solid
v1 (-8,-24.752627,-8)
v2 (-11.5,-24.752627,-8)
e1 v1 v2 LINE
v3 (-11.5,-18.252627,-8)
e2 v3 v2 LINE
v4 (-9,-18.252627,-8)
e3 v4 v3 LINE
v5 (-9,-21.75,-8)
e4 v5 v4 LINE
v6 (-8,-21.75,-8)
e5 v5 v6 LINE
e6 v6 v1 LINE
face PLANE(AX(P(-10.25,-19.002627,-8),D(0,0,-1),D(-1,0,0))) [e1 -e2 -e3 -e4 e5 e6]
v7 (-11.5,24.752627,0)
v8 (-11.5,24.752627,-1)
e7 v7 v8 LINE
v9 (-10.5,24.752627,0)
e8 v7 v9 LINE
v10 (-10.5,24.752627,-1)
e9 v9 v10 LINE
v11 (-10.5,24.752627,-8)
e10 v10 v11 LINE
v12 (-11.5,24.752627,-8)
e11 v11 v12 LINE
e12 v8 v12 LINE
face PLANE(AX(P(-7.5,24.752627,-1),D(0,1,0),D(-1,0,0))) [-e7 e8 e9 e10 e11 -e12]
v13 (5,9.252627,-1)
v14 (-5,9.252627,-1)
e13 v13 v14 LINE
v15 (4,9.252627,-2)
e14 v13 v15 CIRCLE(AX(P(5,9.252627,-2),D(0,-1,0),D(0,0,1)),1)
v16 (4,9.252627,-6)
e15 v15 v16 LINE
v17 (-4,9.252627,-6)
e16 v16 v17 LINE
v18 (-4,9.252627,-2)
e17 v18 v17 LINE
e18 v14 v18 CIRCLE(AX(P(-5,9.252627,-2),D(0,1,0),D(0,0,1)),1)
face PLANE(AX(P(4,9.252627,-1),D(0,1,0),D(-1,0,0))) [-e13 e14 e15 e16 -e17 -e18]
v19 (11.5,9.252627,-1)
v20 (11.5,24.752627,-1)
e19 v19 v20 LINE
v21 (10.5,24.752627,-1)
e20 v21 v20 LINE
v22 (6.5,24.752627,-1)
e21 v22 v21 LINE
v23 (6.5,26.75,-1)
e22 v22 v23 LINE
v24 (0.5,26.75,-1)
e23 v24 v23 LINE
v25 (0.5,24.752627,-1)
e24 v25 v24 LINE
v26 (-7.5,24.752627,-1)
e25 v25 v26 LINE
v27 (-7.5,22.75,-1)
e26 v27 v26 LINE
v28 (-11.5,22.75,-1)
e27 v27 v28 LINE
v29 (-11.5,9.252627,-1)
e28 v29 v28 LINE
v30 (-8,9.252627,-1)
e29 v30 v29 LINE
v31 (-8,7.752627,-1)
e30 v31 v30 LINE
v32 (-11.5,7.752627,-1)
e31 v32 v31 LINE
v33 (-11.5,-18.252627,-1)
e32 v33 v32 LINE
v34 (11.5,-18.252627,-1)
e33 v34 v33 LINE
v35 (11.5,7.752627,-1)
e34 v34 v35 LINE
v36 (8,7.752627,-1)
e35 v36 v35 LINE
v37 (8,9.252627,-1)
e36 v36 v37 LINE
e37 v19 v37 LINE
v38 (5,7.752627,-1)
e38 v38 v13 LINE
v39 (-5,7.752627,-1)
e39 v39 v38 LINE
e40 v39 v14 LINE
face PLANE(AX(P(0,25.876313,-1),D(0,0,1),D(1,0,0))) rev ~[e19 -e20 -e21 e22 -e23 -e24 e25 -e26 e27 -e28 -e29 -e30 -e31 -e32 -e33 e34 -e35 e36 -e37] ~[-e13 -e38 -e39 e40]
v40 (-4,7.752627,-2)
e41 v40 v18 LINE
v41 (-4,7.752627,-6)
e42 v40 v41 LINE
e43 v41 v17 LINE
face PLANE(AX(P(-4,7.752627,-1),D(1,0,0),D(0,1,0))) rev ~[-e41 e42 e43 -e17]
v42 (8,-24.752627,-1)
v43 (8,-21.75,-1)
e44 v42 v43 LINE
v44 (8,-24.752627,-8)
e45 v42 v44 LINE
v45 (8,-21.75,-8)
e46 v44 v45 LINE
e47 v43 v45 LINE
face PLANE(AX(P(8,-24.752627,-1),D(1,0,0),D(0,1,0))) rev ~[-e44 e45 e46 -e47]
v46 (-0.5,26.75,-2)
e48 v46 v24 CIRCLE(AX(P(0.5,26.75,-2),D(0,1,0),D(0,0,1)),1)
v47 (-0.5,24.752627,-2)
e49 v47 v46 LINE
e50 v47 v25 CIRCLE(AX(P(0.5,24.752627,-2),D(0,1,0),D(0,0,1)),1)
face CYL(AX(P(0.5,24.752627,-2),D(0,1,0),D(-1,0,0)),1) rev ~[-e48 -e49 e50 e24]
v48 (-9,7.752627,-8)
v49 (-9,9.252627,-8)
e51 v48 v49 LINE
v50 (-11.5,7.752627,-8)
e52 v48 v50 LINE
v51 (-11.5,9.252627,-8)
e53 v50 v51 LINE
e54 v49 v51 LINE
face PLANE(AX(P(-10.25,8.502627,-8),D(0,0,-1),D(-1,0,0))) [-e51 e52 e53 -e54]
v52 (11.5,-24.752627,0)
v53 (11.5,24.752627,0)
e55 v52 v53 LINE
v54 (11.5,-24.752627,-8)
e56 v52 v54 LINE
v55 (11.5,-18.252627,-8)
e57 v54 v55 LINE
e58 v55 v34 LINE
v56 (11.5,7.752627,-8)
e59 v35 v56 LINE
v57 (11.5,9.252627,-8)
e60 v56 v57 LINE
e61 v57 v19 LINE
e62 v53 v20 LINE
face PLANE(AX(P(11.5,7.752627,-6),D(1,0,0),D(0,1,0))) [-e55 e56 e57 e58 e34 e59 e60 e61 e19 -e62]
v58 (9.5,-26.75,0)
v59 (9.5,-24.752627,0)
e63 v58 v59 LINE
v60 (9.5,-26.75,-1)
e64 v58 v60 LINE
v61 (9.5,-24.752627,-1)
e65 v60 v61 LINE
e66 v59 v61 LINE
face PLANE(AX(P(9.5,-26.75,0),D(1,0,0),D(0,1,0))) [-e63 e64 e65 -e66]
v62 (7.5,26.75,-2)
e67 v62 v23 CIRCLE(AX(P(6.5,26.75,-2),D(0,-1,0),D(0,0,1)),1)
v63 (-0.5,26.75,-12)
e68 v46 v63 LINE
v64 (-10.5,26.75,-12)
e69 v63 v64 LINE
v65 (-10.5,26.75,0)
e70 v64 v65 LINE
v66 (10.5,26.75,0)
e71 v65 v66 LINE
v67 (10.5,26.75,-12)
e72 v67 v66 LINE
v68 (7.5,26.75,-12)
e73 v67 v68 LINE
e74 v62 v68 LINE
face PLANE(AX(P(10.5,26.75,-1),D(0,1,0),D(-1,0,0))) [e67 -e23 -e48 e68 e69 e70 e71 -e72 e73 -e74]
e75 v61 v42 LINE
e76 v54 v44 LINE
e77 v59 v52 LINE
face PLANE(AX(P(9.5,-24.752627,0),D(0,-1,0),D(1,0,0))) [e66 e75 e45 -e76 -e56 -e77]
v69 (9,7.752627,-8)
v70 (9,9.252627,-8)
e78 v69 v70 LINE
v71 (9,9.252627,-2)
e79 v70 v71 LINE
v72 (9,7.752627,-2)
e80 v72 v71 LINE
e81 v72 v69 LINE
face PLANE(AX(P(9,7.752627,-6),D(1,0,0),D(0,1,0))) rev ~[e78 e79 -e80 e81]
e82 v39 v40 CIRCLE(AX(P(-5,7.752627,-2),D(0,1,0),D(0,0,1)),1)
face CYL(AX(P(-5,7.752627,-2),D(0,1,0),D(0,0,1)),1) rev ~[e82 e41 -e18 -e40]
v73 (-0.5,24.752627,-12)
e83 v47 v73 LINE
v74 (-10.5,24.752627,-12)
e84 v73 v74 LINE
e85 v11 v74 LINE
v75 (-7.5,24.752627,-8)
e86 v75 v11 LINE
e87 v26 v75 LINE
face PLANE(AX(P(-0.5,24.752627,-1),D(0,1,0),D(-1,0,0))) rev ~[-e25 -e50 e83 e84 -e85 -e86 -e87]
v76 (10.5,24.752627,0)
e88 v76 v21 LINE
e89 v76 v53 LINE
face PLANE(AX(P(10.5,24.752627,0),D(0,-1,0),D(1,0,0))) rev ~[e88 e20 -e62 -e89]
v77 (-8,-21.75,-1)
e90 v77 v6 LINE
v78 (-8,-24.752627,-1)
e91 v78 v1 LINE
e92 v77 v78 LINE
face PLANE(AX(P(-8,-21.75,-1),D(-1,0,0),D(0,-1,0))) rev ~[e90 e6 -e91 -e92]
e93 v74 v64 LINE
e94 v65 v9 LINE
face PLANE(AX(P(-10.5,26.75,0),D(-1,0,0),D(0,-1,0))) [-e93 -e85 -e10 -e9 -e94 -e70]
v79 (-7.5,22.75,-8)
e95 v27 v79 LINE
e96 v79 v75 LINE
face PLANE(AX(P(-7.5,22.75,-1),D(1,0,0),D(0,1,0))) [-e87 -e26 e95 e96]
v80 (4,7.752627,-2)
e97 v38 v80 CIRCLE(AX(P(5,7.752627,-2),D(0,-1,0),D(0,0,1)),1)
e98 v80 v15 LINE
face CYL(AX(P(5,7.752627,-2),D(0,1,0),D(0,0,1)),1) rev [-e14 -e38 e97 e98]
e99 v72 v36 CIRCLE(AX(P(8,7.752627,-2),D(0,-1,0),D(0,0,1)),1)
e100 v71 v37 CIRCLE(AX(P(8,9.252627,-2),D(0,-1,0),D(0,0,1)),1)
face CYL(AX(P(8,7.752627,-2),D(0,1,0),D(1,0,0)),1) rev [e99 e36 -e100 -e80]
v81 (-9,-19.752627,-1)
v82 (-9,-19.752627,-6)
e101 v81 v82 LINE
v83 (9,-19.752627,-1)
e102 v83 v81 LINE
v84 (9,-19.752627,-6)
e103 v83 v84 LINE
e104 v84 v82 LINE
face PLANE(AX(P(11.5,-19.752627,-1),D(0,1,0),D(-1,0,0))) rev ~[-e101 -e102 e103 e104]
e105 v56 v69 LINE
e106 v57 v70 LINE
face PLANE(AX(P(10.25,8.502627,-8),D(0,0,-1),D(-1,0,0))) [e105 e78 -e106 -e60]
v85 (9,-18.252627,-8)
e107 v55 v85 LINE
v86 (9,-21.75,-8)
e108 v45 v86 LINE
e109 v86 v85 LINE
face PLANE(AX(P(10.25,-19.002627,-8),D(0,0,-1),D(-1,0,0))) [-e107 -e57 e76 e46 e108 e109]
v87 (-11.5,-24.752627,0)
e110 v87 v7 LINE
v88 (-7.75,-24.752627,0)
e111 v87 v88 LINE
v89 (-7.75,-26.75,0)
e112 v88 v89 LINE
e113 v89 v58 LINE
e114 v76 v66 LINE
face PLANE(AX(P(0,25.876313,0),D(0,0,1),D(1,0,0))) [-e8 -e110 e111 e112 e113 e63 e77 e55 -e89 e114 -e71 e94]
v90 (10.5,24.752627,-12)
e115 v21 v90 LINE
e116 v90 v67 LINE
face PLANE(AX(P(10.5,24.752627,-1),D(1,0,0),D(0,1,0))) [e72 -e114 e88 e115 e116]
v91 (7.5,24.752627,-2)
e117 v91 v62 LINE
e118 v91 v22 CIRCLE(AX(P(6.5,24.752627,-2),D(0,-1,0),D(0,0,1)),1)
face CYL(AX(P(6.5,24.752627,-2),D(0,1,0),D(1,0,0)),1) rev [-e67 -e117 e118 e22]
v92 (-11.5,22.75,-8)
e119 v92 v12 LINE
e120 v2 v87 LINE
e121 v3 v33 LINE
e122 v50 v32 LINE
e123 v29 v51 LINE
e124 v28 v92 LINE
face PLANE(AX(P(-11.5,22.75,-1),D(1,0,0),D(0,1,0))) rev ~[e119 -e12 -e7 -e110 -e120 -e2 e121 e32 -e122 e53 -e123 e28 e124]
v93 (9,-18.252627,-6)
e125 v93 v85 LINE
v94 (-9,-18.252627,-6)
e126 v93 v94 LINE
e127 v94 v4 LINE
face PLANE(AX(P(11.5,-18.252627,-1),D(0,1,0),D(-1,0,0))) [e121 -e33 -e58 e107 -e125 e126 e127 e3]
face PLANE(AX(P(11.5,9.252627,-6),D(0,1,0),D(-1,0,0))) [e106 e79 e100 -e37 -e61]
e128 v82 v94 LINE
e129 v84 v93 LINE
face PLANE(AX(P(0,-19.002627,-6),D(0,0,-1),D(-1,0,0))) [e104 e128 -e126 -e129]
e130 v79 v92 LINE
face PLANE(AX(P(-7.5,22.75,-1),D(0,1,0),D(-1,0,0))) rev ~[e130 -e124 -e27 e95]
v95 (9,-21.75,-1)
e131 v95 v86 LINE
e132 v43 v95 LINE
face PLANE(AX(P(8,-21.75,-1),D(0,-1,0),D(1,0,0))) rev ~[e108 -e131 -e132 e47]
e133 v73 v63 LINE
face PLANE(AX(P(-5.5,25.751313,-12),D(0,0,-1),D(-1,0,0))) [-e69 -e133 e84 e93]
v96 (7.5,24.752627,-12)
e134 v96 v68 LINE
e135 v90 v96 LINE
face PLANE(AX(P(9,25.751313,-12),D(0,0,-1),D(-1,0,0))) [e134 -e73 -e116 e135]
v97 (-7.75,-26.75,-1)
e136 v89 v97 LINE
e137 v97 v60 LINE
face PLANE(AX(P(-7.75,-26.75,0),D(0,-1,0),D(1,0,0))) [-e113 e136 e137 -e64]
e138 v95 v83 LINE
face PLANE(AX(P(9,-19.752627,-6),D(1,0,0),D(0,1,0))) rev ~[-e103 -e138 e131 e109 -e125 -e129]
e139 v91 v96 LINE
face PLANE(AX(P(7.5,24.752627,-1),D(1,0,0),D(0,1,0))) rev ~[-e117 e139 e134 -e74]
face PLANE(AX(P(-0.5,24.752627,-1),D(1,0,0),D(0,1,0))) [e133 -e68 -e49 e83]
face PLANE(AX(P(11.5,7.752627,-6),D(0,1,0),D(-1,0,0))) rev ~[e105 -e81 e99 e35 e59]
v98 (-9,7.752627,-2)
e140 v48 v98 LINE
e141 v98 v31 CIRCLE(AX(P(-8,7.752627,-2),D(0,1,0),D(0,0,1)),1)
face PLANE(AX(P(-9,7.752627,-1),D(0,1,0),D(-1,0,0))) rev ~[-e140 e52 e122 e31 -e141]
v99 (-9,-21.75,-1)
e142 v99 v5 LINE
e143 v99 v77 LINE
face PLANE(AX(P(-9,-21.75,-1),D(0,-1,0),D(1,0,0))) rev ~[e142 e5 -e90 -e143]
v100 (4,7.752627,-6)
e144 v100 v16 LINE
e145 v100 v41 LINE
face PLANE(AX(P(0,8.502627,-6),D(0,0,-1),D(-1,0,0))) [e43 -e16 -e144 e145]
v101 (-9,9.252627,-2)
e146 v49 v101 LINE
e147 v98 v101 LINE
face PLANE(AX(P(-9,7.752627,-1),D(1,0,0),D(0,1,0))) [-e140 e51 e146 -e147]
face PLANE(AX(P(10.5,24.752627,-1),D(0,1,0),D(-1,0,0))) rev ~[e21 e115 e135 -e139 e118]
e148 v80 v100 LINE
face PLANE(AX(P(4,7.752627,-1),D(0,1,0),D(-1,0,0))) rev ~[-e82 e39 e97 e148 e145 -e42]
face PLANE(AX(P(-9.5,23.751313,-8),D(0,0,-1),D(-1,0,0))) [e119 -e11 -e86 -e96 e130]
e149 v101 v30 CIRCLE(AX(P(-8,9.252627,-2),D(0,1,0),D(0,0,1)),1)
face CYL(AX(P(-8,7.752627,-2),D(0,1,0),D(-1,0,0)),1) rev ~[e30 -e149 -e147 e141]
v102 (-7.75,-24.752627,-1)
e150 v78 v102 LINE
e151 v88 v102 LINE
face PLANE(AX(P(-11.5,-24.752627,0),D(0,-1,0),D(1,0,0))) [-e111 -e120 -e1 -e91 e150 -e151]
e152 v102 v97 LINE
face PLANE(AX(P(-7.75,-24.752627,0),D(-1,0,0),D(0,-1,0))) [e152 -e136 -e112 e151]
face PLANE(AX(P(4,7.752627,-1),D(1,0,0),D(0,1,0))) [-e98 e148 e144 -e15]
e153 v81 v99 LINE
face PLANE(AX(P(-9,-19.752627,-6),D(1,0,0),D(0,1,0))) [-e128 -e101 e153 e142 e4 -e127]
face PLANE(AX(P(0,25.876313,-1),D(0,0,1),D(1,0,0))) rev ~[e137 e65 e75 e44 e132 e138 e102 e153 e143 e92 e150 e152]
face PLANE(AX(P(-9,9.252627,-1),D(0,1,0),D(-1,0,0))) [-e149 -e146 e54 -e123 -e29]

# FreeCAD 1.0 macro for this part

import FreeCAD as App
import Part
import Sketcher

V = App.Vector
Q = App.Units.Quantity


def edges_at(feature, points):
    """Names of the edges that pass closest to the given points."""
    edges = feature.Shape.Edges
    near = lambda p: min(range(len(edges)), key=lambda i: edges[i].distToShape(Part.Vertex(*p))[0])
    return sorted({f"Edge{near(p) + 1}" for p in points})


def add_polygon(sketch, points):
    """Adds a closed chain of lines whose ends are joined by coincident constraints."""
    first, n = sketch.GeometryCount, len(points)
    for a, b in zip(points, points[1:] + points[:1]):
        sketch.addGeometry(Part.LineSegment(App.Vector(*a, 0), App.Vector(*b, 0)), False)
    for i in range(n):
        sketch.addConstraint(Sketcher.Constraint("Coincident", first + i, 2, first + (i + 1) % n, 1))

doc = App.newDocument("Part")
params = doc.addObject("Spreadsheet::Sheet", "Params")
for row, (alias, value) in enumerate([
    ("sketch1_width", "1 mm"),
    ("sketch1_width2", "2 mm"),
    ("sketch1_width3", "21 mm"),
    ("sketch1_width4", "3.75 mm"),
    ("pad1_length", "1 mm"),
    ("sketch2_width", "23 mm"),
    ("sketch2_width2", "8 mm"),
    ("sketch2_width3", "2.5 mm"),
    ("sketch2_height", "1.5 mm"),
    ("pad2_length", "5 mm"),
    ("sketch3_width", "2.5 mm"),
    ("sketch3_height", "1.5 mm"),
    ("pad3_length", "2 mm"),
    ("sketch4_width", "3 mm"),
    ("sketch4_width2", "10 mm"),
    ("pad4_length", "11 mm"),
    ("sketch5_width", "4 mm"),
    ("sketch5_width2", "1 mm"),
    ("sketch5_height", "5 mm"),
    ("sketch5_width3", "3.5 mm"),
    ("pad5_length", "7 mm"),
    ("fillet_radius", "1 mm"),
], start=1):
    params.set(f"A{row}", alias)
    params.set(f"B{row}", "=" + value)
    params.setAlias(f"B{row}", alias)

body = doc.addObject("PartDesign::Body", "Body")

sketch1 = body.newObject("Sketcher::SketchObject", "Sketch")
sketch1.AttachmentSupport = (doc.getObject("XY_Plane"), [""])
sketch1.MapMode = "FlatFace"
add_polygon(sketch1, [(-10.5, 26.75), (-10.5, 24.752627), (-11.5, 24.752627), (-11.5, -24.752627), (-7.75, -24.752627), (-7.75, -26.75), (9.5, -26.75), (9.5, -24.752627), (11.5, -24.752627), (11.5, 24.752627), (10.5, 24.752627), (10.5, 26.75)])
sketch1.addConstraint([
    Sketcher.Constraint("Vertical", 0),
    Sketcher.Constraint("Horizontal", 1),
    Sketcher.Constraint("Vertical", 2),
    Sketcher.Constraint("Horizontal", 3),
    Sketcher.Constraint("Vertical", 4),
    Sketcher.Constraint("Horizontal", 5),
    Sketcher.Constraint("Vertical", 6),
    Sketcher.Constraint("Horizontal", 7),
    Sketcher.Constraint("Vertical", 8),
    Sketcher.Constraint("Horizontal", 9),
    Sketcher.Constraint("Vertical", 10),
    Sketcher.Constraint("Horizontal", 11),
    Sketcher.Constraint("Symmetric", 1, 2, 7, 2, -1, 1),
    Sketcher.Constraint("Symmetric", 0, 2, 9, 2, -2),
    Sketcher.Constraint("Horizontal", 3, 2, 6, 2),
    Sketcher.Constraint("Equal", 0, 4),
    Sketcher.Constraint("DistanceX", 1, 2, 1, 1, Q("1 mm")),
    Sketcher.Constraint("DistanceX", 7, 1, 7, 2, Q("2 mm")),
    Sketcher.Constraint("DistanceX", 11, 2, 11, 1, Q("21 mm")),
    Sketcher.Constraint("DistanceX", 3, 1, 3, 2, Q("3.75 mm")),
    Sketcher.Constraint("DistanceY", 4, 2, -1, 1, Q("26.75 mm")),
    Sketcher.Constraint("DistanceY", 0, 2, 0, 1, Q("1.997373 mm")),
])
sketch1.setExpression("Constraints[28]", "Params.sketch1_width")
sketch1.setExpression("Constraints[29]", "Params.sketch1_width2")
sketch1.setExpression("Constraints[30]", "Params.sketch1_width3")
sketch1.setExpression("Constraints[31]", "Params.sketch1_width4")
pad1 = body.newObject("PartDesign::Pad", "Pad")
pad1.Profile = sketch1
pad1.setExpression("Length", "Params.pad1_length")
pad1.Reversed = True

sketch2 = body.newObject("Sketcher::SketchObject", "Sketch001")
sketch2.AttachmentSupport = (doc.getObject("XY_Plane"), [""])
sketch2.MapMode = "FlatFace"
sketch2.AttachmentOffset = App.Placement(V(0, 0, -1), App.Rotation())
add_polygon(sketch2, [(11.5, -18.252627), (11.5, -19.752627), (-11.5, -19.752627), (-11.5, -18.252627)])
add_polygon(sketch2, [(11.5, 9.252627), (11.5, 7.752627), (9, 7.752627), (9, 9.252627)])
add_polygon(sketch2, [(4, 9.252627), (4, 7.752627), (-4, 7.752627), (-4, 9.252627)])
add_polygon(sketch2, [(-9, 9.252627), (-9, 7.752627), (-11.5, 7.752627), (-11.5, 9.252627)])
sketch2.addConstraint([
    Sketcher.Constraint("Vertical", 0),
    Sketcher.Constraint("Horizontal", 1),
    Sketcher.Constraint("Vertical", 2),
    Sketcher.Constraint("Horizontal", 3),
    Sketcher.Constraint("Vertical", 4),
    Sketcher.Constraint("Horizontal", 5),
    Sketcher.Constraint("Vertical", 6),
    Sketcher.Constraint("Horizontal", 7),
    Sketcher.Constraint("Vertical", 8),
    Sketcher.Constraint("Horizontal", 9),
    Sketcher.Constraint("Vertical", 10),
    Sketcher.Constraint("Horizontal", 11),
    Sketcher.Constraint("Vertical", 12),
    Sketcher.Constraint("Horizontal", 13),
    Sketcher.Constraint("Vertical", 14),
    Sketcher.Constraint("Horizontal", 15),
    Sketcher.Constraint("Symmetric", 5, 2, 12, 2, -2),
    Sketcher.Constraint("Symmetric", 7, 2, 14, 2, -2),
    Sketcher.Constraint("Horizontal", 5, 2, 8, 2),
    Sketcher.Constraint("Horizontal", 7, 2, 10, 2),
    Sketcher.Constraint("Vertical", 3, 2, 4, 2),
    Sketcher.Constraint("Vertical", 2, 2, 13, 2),
    Sketcher.Constraint("Equal", 2, 4),
    Sketcher.Constraint("DistanceX", 1, 2, 1, 1, Q("23 mm")),
    Sketcher.Constraint("DistanceX", 9, 2, 9, 1, Q("8 mm")),
    Sketcher.Constraint("DistanceX", 5, 2, 5, 1, Q("2.5 mm")),
    Sketcher.Constraint("DistanceY", 0, 2, 0, 1, Q("1.5 mm")),
    Sketcher.Constraint("DistanceX", -1, 1, 8, 2, Q("4 mm")),
    Sketcher.Constraint("DistanceY", 0, 2, -1, 1, Q("19.752627 mm")),
    Sketcher.Constraint("DistanceY", -1, 1, 4, 2, Q("7.752627 mm")),
])
sketch2.setExpression("Constraints[39]", "Params.sketch2_width")
sketch2.setExpression("Constraints[40]", "Params.sketch2_width2")
sketch2.setExpression("Constraints[41]", "Params.sketch2_width3")
sketch2.setExpression("Constraints[42]", "Params.sketch2_height")
pad2 = body.newObject("PartDesign::Pad", "Pad001")
pad2.Profile = sketch2
pad2.setExpression("Length", "Params.pad2_length")
pad2.Reversed = True

sketch3 = body.newObject("Sketcher::SketchObject", "Sketch002")
sketch3.AttachmentSupport = (doc.getObject("XY_Plane"), [""])
sketch3.MapMode = "FlatFace"
sketch3.AttachmentOffset = App.Placement(V(0, 0, -6), App.Rotation())
add_polygon(sketch3, [(11.5, 9.252627), (11.5, 7.752627), (9, 7.752627), (9, 9.252627)])
add_polygon(sketch3, [(-9, 9.252627), (-9, 7.752627), (-11.5, 7.752627), (-11.5, 9.252627)])
add_polygon(sketch3, [(11.5, -18.252627), (11.5, -19.752627), (9, -19.752627), (9, -18.252627)])
add_polygon(sketch3, [(-9, -18.252627), (-9, -19.752627), (-11.5, -19.752627), (-11.5, -18.252627)])
sketch3.addConstraint([
    Sketcher.Constraint("Vertical", 0),
    Sketcher.Constraint("Horizontal", 1),
    Sketcher.Constraint("Vertical", 2),
    Sketcher.Constraint("Horizontal", 3),
    Sketcher.Constraint("Vertical", 4),
    Sketcher.Constraint("Horizontal", 5),
    Sketcher.Constraint("Vertical", 6),
    Sketcher.Constraint("Horizontal", 7),
    Sketcher.Constraint("Vertical", 8),
    Sketcher.Constraint("Horizontal", 9),
    Sketcher.Constraint("Vertical", 10),
    Sketcher.Constraint("Horizontal", 11),
    Sketcher.Constraint("Vertical", 12),
    Sketcher.Constraint("Horizontal", 13),
    Sketcher.Constraint("Vertical", 14),
    Sketcher.Constraint("Horizontal", 15),
    Sketcher.Constraint("Symmetric", 1, 2, 4, 2, -2),
    Sketcher.Constraint("Symmetric", 3, 2, 6, 2, -2),
    Sketcher.Constraint("Symmetric", 9, 2, 12, 2, -2),
    Sketcher.Constraint("Symmetric", 11, 2, 14, 2, -2),
    Sketcher.Constraint("Vertical", 3, 2, 8, 2),
    Sketcher.Constraint("Vertical", 2, 2, 9, 2),
    Sketcher.Constraint("Equal", 6, 8),
    Sketcher.Constraint("DistanceX", 1, 2, 1, 1, Q("2.5 mm")),
    Sketcher.Constraint("DistanceY", 0, 2, 0, 1, Q("1.5 mm")),
    Sketcher.Constraint("DistanceX", -1, 1, 1, 2, Q("9 mm")),
    Sketcher.Constraint("DistanceY", -1, 1, 0, 2, Q("7.752627 mm")),
    Sketcher.Constraint("DistanceY", 8, 2, -1, 1, Q("19.752627 mm")),
])
sketch3.setExpression("Constraints[39]", "Params.sketch3_width")
sketch3.setExpression("Constraints[40]", "Params.sketch3_height")
pad3 = body.newObject("PartDesign::Pad", "Pad002")
pad3.Profile = sketch3
pad3.setExpression("Length", "Params.pad3_length")
pad3.Reversed = True

sketch4 = body.newObject("Sketcher::SketchObject", "Sketch003")
sketch4.AttachmentSupport = (doc.getObject("XY_Plane"), [""])
sketch4.MapMode = "FlatFace"
sketch4.AttachmentOffset = App.Placement(V(0, 0, -1), App.Rotation())
add_polygon(sketch4, [(10.5, 26.75), (10.5, 24.752627), (7.5, 24.752627), (7.5, 26.75)])
add_polygon(sketch4, [(-0.5, 26.75), (-0.5, 24.752627), (-10.5, 24.752627), (-10.5, 26.75)])
sketch4.addConstraint([
    Sketcher.Constraint("Vertical", 0),
    Sketcher.Constraint("Horizontal", 1),
    Sketcher.Constraint("Vertical", 2),
    Sketcher.Constraint("Horizontal", 3),
    Sketcher.Constraint("Vertical", 4),
    Sketcher.Constraint("Horizontal", 5),
    Sketcher.Constraint("Vertical", 6),
    Sketcher.Constraint("Horizontal", 7),
    Sketcher.Constraint("Symmetric", 0, 2, 5, 2, -2),
    Sketcher.Constraint("Horizontal", 3, 2, 6, 2),
    Sketcher.Constraint("DistanceX", 1, 2, 1, 1, Q("3 mm")),
    Sketcher.Constraint("DistanceX", 5, 2, 5, 1, Q("10 mm")),
    Sketcher.Constraint("DistanceX", 4, 2, 1, 2, Q("8 mm")),
    Sketcher.Constraint("DistanceY", -1, 1, 2, 2, Q("26.75 mm")),
    Sketcher.Constraint("DistanceY", 0, 2, 0, 1, Q("1.997373 mm")),
])
sketch4.setExpression("Constraints[18]", "Params.sketch4_width")
sketch4.setExpression("Constraints[19]", "Params.sketch4_width2")
pad4 = body.newObject("PartDesign::Pad", "Pad003")
pad4.Profile = sketch4
pad4.setExpression("Length", "Params.pad4_length")
pad4.Reversed = True

sketch5 = body.newObject("Sketcher::SketchObject", "Sketch004")
sketch5.AttachmentSupport = (doc.getObject("XY_Plane"), [""])
sketch5.MapMode = "FlatFace"
sketch5.AttachmentOffset = App.Placement(V(0, 0, -1), App.Rotation())
add_polygon(sketch5, [(-7.5, 24.752627), (-7.5, 22.75), (-11.5, 22.75), (-11.5, 24.752627)])
add_polygon(sketch5, [(-8, -24.752627), (-11.5, -24.752627), (-11.5, -19.752627), (-9, -19.752627), (-9, -21.75), (-8, -21.75)])
add_polygon(sketch5, [(11.5, -24.752627), (8, -24.752627), (8, -21.75), (9, -21.75), (9, -19.752627), (11.5, -19.752627)])
sketch5.addConstraint([
    Sketcher.Constraint("Vertical", 0),
    Sketcher.Constraint("Horizontal", 1),
    Sketcher.Constraint("Vertical", 2),
    Sketcher.Constraint("Horizontal", 3),
    Sketcher.Constraint("Horizontal", 4),
    Sketcher.Constraint("Vertical", 5),
    Sketcher.Constraint("Horizontal", 6),
    Sketcher.Constraint("Vertical", 7),
    Sketcher.Constraint("Horizontal", 8),
    Sketcher.Constraint("Vertical", 9),
    Sketcher.Constraint("Horizontal", 10),
    Sketcher.Constraint("Vertical", 11),
    Sketcher.Constraint("Horizontal", 12),
    Sketcher.Constraint("Vertical", 13),
    Sketcher.Constraint("Horizontal", 14),
    Sketcher.Constraint("Vertical", 15),
    Sketcher.Constraint("Symmetric", 2, 2, 15, 2, -1, 1),
    Sketcher.Constraint("Symmetric", 9, 2, 10, 2, -2),
    Sketcher.Constraint("Symmetric", 7, 2, 12, 2, -2),
    Sketcher.Constraint("Symmetric", 5, 2, 14, 2, -2),
    Sketcher.Constraint("DistanceX", 1, 2, 1, 1, Q("4 mm")),
    Sketcher.Constraint("DistanceX", 8, 1, 8, 2, Q("1 mm")),
    Sketcher.Constraint("DistanceY", 5, 1, 5, 2, Q("5 mm")),
    Sketcher.Constraint("DistanceX", 4, 2, 4, 1, Q("3.5 mm")),
    Sketcher.Constraint("DistanceX", 6, 2, -1, 1, Q("9 mm")),
    Sketcher.Constraint("DistanceY", 7, 2, 0, 2, Q("44.5 mm")),
    Sketcher.Constraint("DistanceY", -1, 1, 0, 2, Q("22.75 mm")),
    Sketcher.Constraint("DistanceY", 0, 2, 0, 1, Q("2.002627 mm")),
])
sketch5.setExpression("Constraints[36]", "Params.sketch5_width")
sketch5.setExpression("Constraints[37]", "Params.sketch5_width2")
sketch5.setExpression("Constraints[38]", "Params.sketch5_height")
sketch5.setExpression("Constraints[39]", "Params.sketch5_width3")
pad5 = body.newObject("PartDesign::Pad", "Pad004")
pad5.Profile = sketch5
pad5.setExpression("Length", "Params.pad5_length")
pad5.Reversed = True
doc.recompute()

fillet = body.newObject("PartDesign::Fillet", "Fillet")
fillet.Base = (pad5, edges_at(pad5, [
    (7.5, 25.751, -1),
    (-0.5, 25.751, -1),
    (-4, 8.503, -1),
    (4, 8.503, -1),
    (9, 8.503, -1),
    (-9, 8.503, -1),
]))
fillet.setExpression("Radius", "Params.fillet_radius")

doc.recompute()
